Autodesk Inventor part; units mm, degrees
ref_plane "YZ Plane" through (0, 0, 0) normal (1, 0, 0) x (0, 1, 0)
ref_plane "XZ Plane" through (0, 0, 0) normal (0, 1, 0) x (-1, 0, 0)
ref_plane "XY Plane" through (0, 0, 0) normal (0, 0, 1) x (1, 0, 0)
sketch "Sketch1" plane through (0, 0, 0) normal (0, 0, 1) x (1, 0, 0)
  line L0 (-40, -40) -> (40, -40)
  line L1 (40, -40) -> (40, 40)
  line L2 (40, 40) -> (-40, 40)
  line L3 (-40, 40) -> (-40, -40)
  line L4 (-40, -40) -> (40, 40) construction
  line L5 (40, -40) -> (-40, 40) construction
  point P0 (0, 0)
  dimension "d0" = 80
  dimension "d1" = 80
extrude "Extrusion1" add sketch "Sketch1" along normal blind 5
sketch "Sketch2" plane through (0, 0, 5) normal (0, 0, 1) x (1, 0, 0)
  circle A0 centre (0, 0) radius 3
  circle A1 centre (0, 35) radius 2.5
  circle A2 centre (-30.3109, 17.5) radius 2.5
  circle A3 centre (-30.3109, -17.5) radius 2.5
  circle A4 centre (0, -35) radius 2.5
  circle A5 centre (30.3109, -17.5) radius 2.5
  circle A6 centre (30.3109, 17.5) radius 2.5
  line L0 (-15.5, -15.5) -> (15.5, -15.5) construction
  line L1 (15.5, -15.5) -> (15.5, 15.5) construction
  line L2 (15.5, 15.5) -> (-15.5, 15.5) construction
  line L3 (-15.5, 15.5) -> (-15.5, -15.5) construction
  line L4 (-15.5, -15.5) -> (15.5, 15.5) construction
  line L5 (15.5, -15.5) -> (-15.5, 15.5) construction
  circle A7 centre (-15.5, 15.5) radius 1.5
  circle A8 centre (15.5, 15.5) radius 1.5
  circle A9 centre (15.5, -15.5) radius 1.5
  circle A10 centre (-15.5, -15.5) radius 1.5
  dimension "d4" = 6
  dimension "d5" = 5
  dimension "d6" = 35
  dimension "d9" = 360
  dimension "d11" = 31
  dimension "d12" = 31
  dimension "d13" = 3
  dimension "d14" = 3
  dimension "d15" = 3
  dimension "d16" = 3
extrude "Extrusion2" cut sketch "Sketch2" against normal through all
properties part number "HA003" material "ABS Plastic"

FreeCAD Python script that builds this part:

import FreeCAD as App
import Part
import Sketcher

V = App.Vector
Q = App.Units.Quantity


def add_polygon(sketch, points):
    """Adds a closed chain of lines whose ends are joined by coincident constraints."""
    first, n = sketch.GeometryCount, len(points)
    for a, b in zip(points, points[1:] + points[:1]):
        sketch.addGeometry(Part.LineSegment(App.Vector(*a, 0), App.Vector(*b, 0)), False)
    for i in range(n):
        sketch.addConstraint(Sketcher.Constraint("Coincident", first + i, 2, first + (i + 1) % n, 1))

doc = App.newDocument("Part")
body = doc.addObject("PartDesign::Body", "Body")

sketch1 = doc.addObject("Sketcher::SketchObject", "Sketch")
body.addObject(sketch1)
sketch1.AttachmentSupport = (doc.XY_Plane, [""])
sketch1.MapMode = "FlatFace"
add_polygon(sketch1, [(-40, 40), (-40, -40), (40, -40), (40, 40)])
sketch1.addConstraint([
    Sketcher.Constraint("Vertical", 0),
    Sketcher.Constraint("Horizontal", 1),
    Sketcher.Constraint("Vertical", 2),
    Sketcher.Constraint("Horizontal", 3),
    Sketcher.Constraint("Symmetric", 0, 2, 2, 2, -1, 1),
    Sketcher.Constraint("Equal", 3, 0),
    Sketcher.Constraint("DistanceX", 1, 1, 1, 2, Q("80 mm")),
])
pad1 = doc.addObject("PartDesign::Pad", "Pad")
body.addObject(pad1)
pad1.Profile = sketch1
pad1.Length = 5

sketch2 = doc.addObject("Sketcher::SketchObject", "Sketch001")
body.addObject(sketch2)
sketch2.AttachmentSupport = (doc.XY_Plane, [""])
sketch2.MapMode = "FlatFace"
sketch2.AttachmentOffset = App.Placement(V(0, 0, 5), App.Rotation())
sketch2.addGeometry([
    Part.Circle(V(0, 0, 0), V(0, 0, 1), 3),
    Part.Circle(V(0, 35, 0), V(0, 0, 1), 2.5),
    Part.Circle(V(-30.3, 17.5, 0), V(0, 0, 1), 2.5),
    Part.Circle(V(-30.3, -17.5, 0), V(0, 0, 1), 2.5),
    Part.Circle(V(0, -35, 0), V(0, 0, 1), 2.5),
    Part.Circle(V(30.3, -17.5, 0), V(0, 0, 1), 2.5),
    Part.Circle(V(30.3, 17.5, 0), V(0, 0, 1), 2.5),
    Part.Circle(V(-15.5, 15.5, 0), V(0, 0, 1), 1.5),
    Part.Circle(V(15.5, 15.5, 0), V(0, 0, 1), 1.5),
    Part.Circle(V(15.5, -15.5, 0), V(0, 0, 1), 1.5),
    Part.Circle(V(-15.5, -15.5, 0), V(0, 0, 1), 1.5),
], False)
sketch2.addConstraint([
    Sketcher.Constraint("Coincident", 0, 3, -1, 1),
    Sketcher.Constraint("Equal", 1, 2),
    Sketcher.Constraint("Equal", 2, 3),
    Sketcher.Constraint("Equal", 3, 4),
    Sketcher.Constraint("Equal", 4, 5),
    Sketcher.Constraint("Equal", 5, 6),
    Sketcher.Constraint("Equal", 7, 8),
    Sketcher.Constraint("Equal", 8, 9),
    Sketcher.Constraint("Equal", 9, 10),
    Sketcher.Constraint("Symmetric", 1, 3, 4, 3, -1, 1),
    Sketcher.Constraint("Symmetric", 2, 3, 5, 3, -1, 1),
    Sketcher.Constraint("Symmetric", 3, 3, 6, 3, -1, 1),
    Sketcher.Constraint("Symmetric", 7, 3, 9, 3, -1, 1),
    Sketcher.Constraint("Symmetric", 8, 3, 10, 3, -1, 1),
    Sketcher.Constraint("Symmetric", 3, 3, 5, 3, -2),
    Sketcher.Constraint("Symmetric", 7, 3, 8, 3, -2),
    Sketcher.Constraint("PointOnObject", 1, 3, -2),
    Sketcher.Constraint("Diameter", 0, Q("6 mm")),
    Sketcher.Constraint("Diameter", 1, Q("5 mm")),
    Sketcher.Constraint("Diameter", 7, Q("3 mm")),
    Sketcher.Constraint("DistanceY", -1, 1, 1, 3, Q("35 mm")),
    Sketcher.Constraint("DistanceY", 3, 3, 2, 3, Q("35 mm")),
    Sketcher.Constraint("DistanceX", 7, 3, 8, 3, Q("31 mm")),
    Sketcher.Constraint("DistanceY", 9, 3, 8, 3, Q("31 mm")),
    Sketcher.Constraint("DistanceX", 2, 3, -1, 1, Q("30.311 mm")),
])
pocket1 = doc.addObject("PartDesign::Pocket", "Pocket")
body.addObject(pocket1)
pocket1.Profile = sketch2
pocket1.Type = "ThroughAll"

doc.recompute()
